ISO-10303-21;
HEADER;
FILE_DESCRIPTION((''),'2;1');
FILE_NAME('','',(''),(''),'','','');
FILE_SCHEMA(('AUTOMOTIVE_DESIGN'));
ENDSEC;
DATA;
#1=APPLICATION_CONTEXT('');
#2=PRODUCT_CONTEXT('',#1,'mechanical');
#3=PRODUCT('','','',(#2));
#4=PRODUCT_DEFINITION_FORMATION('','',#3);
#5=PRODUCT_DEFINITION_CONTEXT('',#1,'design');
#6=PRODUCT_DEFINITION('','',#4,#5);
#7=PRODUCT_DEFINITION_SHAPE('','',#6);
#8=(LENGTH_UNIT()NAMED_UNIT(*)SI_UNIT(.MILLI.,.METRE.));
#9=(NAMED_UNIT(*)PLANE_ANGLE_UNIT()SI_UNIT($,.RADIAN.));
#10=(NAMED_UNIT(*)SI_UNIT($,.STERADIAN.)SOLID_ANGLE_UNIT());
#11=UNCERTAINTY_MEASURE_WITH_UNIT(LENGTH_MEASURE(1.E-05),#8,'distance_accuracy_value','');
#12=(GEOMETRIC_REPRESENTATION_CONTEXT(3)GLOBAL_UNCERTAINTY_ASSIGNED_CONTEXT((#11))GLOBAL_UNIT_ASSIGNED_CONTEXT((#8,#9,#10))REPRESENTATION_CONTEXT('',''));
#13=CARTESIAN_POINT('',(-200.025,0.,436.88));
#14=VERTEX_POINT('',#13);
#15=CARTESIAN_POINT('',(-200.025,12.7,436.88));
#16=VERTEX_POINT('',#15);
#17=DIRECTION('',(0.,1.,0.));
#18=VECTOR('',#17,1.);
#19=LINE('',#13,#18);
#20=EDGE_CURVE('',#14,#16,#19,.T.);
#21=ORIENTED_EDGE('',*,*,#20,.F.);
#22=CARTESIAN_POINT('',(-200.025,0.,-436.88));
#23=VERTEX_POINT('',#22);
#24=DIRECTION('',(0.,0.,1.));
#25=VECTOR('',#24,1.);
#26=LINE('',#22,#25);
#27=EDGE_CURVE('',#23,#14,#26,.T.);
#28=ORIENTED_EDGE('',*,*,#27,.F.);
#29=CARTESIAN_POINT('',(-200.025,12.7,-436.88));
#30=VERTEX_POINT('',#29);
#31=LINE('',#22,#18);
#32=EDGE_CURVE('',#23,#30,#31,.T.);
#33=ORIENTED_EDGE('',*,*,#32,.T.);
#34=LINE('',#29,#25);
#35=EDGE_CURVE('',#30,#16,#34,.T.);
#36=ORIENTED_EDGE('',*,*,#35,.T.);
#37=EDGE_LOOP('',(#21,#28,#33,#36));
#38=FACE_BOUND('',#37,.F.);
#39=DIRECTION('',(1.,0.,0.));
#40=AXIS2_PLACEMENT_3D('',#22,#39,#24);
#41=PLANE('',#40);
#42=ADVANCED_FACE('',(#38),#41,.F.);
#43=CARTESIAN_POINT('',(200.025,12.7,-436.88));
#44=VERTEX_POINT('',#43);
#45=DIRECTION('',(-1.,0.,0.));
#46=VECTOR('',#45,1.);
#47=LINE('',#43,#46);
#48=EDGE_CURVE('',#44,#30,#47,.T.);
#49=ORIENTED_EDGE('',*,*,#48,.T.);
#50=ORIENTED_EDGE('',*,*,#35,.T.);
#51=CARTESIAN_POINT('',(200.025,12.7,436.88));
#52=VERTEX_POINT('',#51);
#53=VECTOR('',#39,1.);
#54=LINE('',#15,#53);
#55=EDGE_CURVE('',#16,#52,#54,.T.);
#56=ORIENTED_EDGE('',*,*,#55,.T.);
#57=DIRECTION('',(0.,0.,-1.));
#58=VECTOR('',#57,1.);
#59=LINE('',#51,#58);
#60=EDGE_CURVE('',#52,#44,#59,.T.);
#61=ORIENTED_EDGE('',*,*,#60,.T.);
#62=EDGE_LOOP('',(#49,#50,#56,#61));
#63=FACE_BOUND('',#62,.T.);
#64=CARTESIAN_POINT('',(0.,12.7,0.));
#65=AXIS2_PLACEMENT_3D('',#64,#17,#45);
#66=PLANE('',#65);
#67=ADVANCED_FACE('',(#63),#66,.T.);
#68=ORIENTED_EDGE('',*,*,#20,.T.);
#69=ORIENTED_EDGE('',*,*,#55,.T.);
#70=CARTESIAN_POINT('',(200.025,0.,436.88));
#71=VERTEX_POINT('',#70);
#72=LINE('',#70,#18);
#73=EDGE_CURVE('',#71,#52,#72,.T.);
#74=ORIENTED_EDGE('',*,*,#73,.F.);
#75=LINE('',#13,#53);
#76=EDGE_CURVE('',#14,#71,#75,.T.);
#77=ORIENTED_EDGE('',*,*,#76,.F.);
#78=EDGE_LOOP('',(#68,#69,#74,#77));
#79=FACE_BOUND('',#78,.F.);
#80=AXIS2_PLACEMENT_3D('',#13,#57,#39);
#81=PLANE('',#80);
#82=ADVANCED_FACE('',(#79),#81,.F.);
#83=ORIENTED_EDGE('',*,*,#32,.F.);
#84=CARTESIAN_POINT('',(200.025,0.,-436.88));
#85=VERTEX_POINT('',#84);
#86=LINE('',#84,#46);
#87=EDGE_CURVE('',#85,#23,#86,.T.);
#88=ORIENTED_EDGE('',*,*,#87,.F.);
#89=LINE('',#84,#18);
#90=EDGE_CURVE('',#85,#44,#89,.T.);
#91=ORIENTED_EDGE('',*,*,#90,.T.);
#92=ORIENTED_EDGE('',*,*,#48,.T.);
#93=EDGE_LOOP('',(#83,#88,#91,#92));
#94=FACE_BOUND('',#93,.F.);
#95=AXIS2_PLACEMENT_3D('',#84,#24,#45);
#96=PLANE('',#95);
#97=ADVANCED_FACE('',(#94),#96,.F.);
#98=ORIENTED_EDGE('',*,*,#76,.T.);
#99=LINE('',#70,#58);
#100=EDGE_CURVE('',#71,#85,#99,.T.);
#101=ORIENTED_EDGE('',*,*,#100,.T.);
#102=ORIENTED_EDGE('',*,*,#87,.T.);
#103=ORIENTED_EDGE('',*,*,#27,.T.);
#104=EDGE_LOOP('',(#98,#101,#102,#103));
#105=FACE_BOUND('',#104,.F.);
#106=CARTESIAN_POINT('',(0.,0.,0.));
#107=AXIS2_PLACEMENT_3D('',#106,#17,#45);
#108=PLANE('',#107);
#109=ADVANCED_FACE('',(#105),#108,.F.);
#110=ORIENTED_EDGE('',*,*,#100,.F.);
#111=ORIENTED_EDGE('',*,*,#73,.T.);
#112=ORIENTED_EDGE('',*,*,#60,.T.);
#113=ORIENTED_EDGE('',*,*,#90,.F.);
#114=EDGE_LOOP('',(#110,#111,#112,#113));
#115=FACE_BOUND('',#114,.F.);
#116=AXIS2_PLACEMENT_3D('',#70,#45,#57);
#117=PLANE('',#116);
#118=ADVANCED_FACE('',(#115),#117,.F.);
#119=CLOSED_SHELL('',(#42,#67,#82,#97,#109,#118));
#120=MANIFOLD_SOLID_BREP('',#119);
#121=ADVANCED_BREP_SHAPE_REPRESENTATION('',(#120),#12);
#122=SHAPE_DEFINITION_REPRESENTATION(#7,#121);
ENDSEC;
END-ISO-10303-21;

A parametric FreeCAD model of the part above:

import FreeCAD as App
import Part
import Sketcher
Q = App.Units.Quantity


def add_polygon(sketch, points):
    """Adds a closed chain of lines whose ends are joined by coincident constraints."""
    first, n = sketch.GeometryCount, len(points)
    for a, b in zip(points, points[1:] + points[:1]):
        sketch.addGeometry(Part.LineSegment(App.Vector(*a, 0), App.Vector(*b, 0)), False)
    for i in range(n):
        sketch.addConstraint(Sketcher.Constraint("Coincident", first + i, 2, first + (i + 1) % n, 1))

doc = App.newDocument("Part")
body = doc.addObject("PartDesign::Body", "Body")

# Sketch on XZ plane
sketch1 = body.newObject("Sketcher::SketchObject", "Sketch")
sketch1.AttachmentSupport = (doc.getObject("XZ_Plane"), [""])
sketch1.MapMode = "FlatFace"
add_polygon(sketch1, [(-200, -437), (-200, 437), (200, 437), (200, -437)])  # lines 0-3
sketch1.addConstraint([
    Sketcher.Constraint("Vertical", 0),
    Sketcher.Constraint("Horizontal", 1),
    Sketcher.Constraint("Vertical", 2),
    Sketcher.Constraint("Horizontal", 3),
    Sketcher.Constraint("Symmetric", 0, 2, 2, 2, -1, 1),
    Sketcher.Constraint("DistanceY", 0, 1, 0, 2, Q("34.4 in")),
    Sketcher.Constraint("DistanceX", 1, 1, 1, 2, Q("15.75 in")),
])
pad1 = body.newObject("PartDesign::Pad", "Pad")
pad1.Profile = sketch1
pad1.Length = Q("0.5 in")
pad1.Reversed = True

doc.recompute()
